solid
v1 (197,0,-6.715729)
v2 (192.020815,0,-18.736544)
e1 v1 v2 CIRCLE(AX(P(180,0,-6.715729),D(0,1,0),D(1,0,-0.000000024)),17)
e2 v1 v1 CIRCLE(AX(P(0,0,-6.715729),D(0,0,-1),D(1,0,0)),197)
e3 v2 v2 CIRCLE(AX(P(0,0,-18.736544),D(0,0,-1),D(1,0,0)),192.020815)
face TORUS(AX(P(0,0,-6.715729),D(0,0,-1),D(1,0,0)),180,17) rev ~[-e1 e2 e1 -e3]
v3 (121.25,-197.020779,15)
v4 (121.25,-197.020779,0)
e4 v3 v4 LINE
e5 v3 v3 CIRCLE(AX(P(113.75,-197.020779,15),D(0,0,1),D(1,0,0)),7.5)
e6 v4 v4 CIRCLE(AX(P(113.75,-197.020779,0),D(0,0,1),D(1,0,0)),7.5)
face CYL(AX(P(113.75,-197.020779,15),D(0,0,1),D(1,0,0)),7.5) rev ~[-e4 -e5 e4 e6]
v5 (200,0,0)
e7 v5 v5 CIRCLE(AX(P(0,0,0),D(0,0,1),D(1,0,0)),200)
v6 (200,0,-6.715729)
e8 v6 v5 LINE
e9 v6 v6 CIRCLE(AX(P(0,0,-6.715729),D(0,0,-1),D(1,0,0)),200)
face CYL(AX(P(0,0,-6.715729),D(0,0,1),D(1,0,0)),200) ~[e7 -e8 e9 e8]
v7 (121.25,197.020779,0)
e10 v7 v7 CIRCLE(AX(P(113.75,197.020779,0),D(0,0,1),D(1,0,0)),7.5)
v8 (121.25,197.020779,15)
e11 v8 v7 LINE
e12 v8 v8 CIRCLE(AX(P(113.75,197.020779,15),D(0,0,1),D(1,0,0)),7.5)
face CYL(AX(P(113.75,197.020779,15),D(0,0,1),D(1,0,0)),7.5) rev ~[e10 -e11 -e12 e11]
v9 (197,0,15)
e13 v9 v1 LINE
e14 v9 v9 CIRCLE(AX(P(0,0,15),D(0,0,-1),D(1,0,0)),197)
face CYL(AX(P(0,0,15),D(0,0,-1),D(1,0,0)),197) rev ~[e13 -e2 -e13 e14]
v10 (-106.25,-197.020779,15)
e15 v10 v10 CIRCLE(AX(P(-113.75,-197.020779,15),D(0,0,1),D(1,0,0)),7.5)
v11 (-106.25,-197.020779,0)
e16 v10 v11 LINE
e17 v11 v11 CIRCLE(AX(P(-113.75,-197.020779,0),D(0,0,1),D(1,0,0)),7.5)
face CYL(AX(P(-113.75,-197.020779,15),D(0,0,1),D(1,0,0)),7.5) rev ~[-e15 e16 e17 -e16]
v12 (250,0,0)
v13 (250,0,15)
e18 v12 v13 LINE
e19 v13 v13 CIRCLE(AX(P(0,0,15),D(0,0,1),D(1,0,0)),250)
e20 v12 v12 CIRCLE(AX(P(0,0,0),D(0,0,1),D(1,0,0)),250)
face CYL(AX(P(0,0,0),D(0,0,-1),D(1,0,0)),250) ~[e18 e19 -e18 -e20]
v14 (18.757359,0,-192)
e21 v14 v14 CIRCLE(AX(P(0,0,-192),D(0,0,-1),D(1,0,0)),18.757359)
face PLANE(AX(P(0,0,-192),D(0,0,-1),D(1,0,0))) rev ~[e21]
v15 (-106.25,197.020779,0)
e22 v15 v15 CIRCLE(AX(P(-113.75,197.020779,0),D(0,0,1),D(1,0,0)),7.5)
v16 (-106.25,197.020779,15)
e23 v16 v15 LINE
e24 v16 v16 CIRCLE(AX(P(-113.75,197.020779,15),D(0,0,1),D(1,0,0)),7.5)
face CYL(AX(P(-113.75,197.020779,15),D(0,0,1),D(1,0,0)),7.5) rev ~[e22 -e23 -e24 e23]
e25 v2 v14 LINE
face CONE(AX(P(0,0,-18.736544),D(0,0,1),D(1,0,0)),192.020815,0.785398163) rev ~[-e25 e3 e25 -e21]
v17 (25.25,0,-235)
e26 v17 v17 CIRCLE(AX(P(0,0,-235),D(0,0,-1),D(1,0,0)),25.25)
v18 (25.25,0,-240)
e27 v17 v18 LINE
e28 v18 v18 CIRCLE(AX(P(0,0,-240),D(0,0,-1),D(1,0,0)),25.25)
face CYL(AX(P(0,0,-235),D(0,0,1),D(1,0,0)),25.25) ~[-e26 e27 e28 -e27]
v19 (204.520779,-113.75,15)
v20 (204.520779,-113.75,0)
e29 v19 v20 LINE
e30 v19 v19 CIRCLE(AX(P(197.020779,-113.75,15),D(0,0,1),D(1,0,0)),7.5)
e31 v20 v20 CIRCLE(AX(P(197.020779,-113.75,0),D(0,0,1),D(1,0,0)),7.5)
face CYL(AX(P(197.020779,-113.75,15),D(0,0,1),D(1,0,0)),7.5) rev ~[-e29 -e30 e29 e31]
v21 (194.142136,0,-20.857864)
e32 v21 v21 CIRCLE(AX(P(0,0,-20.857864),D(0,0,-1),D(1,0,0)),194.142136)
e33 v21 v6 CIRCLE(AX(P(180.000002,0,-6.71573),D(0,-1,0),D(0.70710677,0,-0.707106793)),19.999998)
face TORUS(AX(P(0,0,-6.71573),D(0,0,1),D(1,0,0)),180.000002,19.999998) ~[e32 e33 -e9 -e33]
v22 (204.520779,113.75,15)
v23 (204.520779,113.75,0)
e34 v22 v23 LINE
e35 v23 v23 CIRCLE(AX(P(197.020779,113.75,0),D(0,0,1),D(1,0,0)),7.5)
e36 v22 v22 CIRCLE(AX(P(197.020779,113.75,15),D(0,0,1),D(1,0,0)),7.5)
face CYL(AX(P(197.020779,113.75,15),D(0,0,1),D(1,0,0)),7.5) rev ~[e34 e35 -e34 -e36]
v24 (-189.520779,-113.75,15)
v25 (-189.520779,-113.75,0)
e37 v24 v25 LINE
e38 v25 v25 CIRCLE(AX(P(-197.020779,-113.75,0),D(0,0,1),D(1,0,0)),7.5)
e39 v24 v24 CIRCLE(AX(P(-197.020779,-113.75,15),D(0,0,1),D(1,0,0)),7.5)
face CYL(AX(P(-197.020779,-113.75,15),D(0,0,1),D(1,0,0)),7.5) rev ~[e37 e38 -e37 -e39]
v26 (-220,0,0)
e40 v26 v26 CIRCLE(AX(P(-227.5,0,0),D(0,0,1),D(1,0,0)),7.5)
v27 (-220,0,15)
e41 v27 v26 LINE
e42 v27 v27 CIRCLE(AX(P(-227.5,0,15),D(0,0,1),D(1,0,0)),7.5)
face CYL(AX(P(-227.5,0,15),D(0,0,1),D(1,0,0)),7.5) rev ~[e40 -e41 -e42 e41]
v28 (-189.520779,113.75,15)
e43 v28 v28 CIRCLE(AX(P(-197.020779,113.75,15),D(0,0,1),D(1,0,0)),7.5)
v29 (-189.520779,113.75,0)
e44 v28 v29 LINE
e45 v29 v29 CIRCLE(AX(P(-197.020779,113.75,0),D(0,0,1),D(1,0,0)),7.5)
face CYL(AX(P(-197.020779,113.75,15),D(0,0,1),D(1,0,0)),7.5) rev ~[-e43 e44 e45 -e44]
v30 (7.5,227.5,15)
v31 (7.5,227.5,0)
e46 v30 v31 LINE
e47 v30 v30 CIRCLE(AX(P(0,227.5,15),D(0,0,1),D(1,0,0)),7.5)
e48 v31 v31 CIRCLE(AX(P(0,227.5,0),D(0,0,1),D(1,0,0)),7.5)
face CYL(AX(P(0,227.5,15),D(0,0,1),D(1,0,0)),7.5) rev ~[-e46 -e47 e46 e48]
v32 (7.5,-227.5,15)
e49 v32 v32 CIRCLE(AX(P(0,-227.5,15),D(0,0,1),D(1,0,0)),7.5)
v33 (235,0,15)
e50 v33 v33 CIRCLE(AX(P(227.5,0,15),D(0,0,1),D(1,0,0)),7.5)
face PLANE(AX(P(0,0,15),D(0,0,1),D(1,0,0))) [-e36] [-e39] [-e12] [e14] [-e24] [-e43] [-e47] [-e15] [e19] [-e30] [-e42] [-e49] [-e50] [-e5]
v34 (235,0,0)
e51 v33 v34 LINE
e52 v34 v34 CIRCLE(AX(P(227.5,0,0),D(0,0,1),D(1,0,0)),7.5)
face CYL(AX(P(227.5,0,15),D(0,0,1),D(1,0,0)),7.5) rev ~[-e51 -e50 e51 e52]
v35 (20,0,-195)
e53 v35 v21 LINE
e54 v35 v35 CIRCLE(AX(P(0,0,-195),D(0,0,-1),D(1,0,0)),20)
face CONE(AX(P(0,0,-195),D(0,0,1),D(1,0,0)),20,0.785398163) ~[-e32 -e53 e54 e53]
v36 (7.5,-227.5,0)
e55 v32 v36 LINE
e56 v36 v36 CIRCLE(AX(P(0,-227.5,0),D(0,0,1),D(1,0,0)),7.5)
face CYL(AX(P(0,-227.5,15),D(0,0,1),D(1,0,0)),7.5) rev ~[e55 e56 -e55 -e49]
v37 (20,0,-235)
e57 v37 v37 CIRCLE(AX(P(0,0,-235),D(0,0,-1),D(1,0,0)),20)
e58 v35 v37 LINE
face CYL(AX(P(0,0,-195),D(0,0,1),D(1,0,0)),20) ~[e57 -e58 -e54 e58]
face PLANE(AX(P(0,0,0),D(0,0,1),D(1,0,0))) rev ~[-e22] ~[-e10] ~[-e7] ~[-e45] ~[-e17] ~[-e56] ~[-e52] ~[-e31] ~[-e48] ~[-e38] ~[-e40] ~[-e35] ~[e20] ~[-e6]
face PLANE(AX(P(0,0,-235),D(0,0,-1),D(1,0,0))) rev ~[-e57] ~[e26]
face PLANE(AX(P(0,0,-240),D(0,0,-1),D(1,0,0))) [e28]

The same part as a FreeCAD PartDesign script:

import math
import FreeCAD as App
import Part
import Sketcher

V = App.Vector
Q = App.Units.Quantity

doc = App.newDocument("Part")
body = doc.addObject("PartDesign::Body", "Body")

sketch1 = doc.addObject("Sketcher::SketchObject", "Sketch")
body.addObject(sketch1)
sketch1.AttachmentSupport = (doc.XY_Plane, [""])
sketch1.MapMode = "FlatFace"
sketch1.addGeometry(Part.Circle(V(0, 0, 0), V(0, 0, 1), 250), False)
sketch1.addGeometry(Part.Circle(V(0, 0, 0), V(0, 0, 1), 200), False)
sketch1.addConstraint(Sketcher.Constraint("Coincident", 0, 3, -1, 1))
sketch1.addConstraint(Sketcher.Constraint("Coincident", 1, 3, -1, 1))
sketch1.addConstraint(Sketcher.Constraint("Diameter", 0, 500.0))
sketch1.addConstraint(Sketcher.Constraint("Diameter", 1, 400.0))
pad1 = doc.addObject("PartDesign::Pad", "Pad")
body.addObject(pad1)
pad1.Profile = sketch1
pad1.Length = 15

sketch2 = doc.addObject("Sketcher::SketchObject", "Sketch001")
body.addObject(sketch2)
sketch2.AttachmentSupport = (doc.XZ_Plane, [""])
sketch2.MapMode = "FlatFace"
sketch2.addGeometry(Part.LineSegment(V(200, -6.715729, 0), V(200, 15, 0)), False)
sketch2.addGeometry(Part.LineSegment(V(200, 15, 0), V(197, 15, 0)), False)
sketch2.addGeometry(Part.LineSegment(V(197, 15, 0), V(197, -6.715729, 0)), False)
sketch2.addGeometry(Part.ArcOfCircle(Part.Circle(V(180, -6.715729, 0), V(0, 0, 1), 17), math.radians(-45.000002), math.radians(-0.000001)), False)
sketch2.addGeometry(Part.LineSegment(V(192.020815, -18.736544, 0), V(18.757359, -192, 0)), False)
sketch2.addGeometry(Part.LineSegment(V(18.757359, -192, 0), V(0, -192, 0)), False)
sketch2.addGeometry(Part.LineSegment(V(0, -192, 0), V(0, -195, 0)), False)
sketch2.addGeometry(Part.LineSegment(V(0, -195, 0), V(20, -195, 0)), False)
sketch2.addGeometry(Part.LineSegment(V(20, -195, 0), V(194.142136, -20.857864, 0)), False)
sketch2.addGeometry(Part.ArcOfCircle(Part.Circle(V(180.000002, -6.71573, 0), V(0, 0, 1), 19.999998), math.radians(-45.000001), math.radians(0.000002)), False)
sketch2.addConstraint(Sketcher.Constraint("Coincident", 0, 2, 1, 1))
sketch2.addConstraint(Sketcher.Constraint("Coincident", 1, 2, 2, 1))
sketch2.addConstraint(Sketcher.Constraint("Tangent", 2, 2, 3, 2))
sketch2.addConstraint(Sketcher.Constraint("Tangent", 3, 1, 4, 1))
sketch2.addConstraint(Sketcher.Constraint("Coincident", 4, 2, 5, 1))
sketch2.addConstraint(Sketcher.Constraint("Coincident", 5, 2, 6, 1))
sketch2.addConstraint(Sketcher.Constraint("Coincident", 6, 2, 7, 1))
sketch2.addConstraint(Sketcher.Constraint("Coincident", 7, 2, 8, 1))
sketch2.addConstraint(Sketcher.Constraint("Tangent", 8, 2, 9, 1))
sketch2.addConstraint(Sketcher.Constraint("Tangent", 9, 2, 0, 1))
sketch2.addConstraint(Sketcher.Constraint("Vertical", 0))
sketch2.addConstraint(Sketcher.Constraint("Horizontal", 1))
sketch2.addConstraint(Sketcher.Constraint("Vertical", 2))
sketch2.addConstraint(Sketcher.Constraint("Horizontal", 5))
sketch2.addConstraint(Sketcher.Constraint("Vertical", 6))
sketch2.addConstraint(Sketcher.Constraint("Horizontal", 7))
sketch2.addConstraint(Sketcher.Constraint("Coincident", 9, 3, 3, 3))
sketch2.addConstraint(Sketcher.Constraint("PointOnObject", 5, 2, -2))
sketch2.addConstraint(Sketcher.Constraint("Parallel", 4, 8))
sketch2.addConstraint(Sketcher.Constraint("Equal", 1, 6))
sketch2.addConstraint(Sketcher.Constraint("Radius", 3, 17.0))
sketch2.addConstraint(Sketcher.Constraint("DistanceX", 1, 2, 1, 1, 3.0))
sketch2.addConstraint(Sketcher.Constraint("DistanceX", 7, 1, 7, 2, 20.0))
sketch2.addConstraint(Sketcher.Constraint("Angle", 4, Q("-135 deg")))
sketch2.addConstraint(Sketcher.Constraint("DistanceX", -1, 1, 3, 3, 180.0))
sketch2.addConstraint(Sketcher.Constraint("DistanceY", -1, 1, 0, 2, 15.0))
sketch2.addConstraint(Sketcher.Constraint("DistanceY", 4, 2, -1, 1, 192.0))
revolution = doc.addObject("PartDesign::Revolution", "Revolution")
body.addObject(revolution)
revolution.Profile = sketch2
revolution.ReferenceAxis = (sketch2, ["V_Axis"])
revolution.Angle = 360

sketch3 = doc.addObject("Sketcher::SketchObject", "Sketch002")
body.addObject(sketch3)
sketch3.AttachmentSupport = (doc.XY_Plane, [""])
sketch3.MapMode = "FlatFace"
sketch3.AttachmentOffset = App.Placement(V(0, 0, 15), App.Rotation())
sketch3.addGeometry(Part.Circle(V(227.5, 0, 0), V(0, 0, 1), 7.5), False)
sketch3.addGeometry(Part.Circle(V(197.020779, 113.75, 0), V(0, 0, 1), 7.5), False)
sketch3.addGeometry(Part.Circle(V(113.75, 197.020779, 0), V(0, 0, 1), 7.5), False)
sketch3.addGeometry(Part.Circle(V(0, 227.5, 0), V(0, 0, 1), 7.5), False)
sketch3.addGeometry(Part.Circle(V(-113.75, 197.020779, 0), V(0, 0, 1), 7.5), False)
sketch3.addGeometry(Part.Circle(V(-197.020779, 113.75, 0), V(0, 0, 1), 7.5), False)
sketch3.addGeometry(Part.Circle(V(-227.5, 0, 0), V(0, 0, 1), 7.5), False)
sketch3.addGeometry(Part.Circle(V(-197.020779, -113.75, 0), V(0, 0, 1), 7.5), False)
sketch3.addGeometry(Part.Circle(V(-113.75, -197.020779, 0), V(0, 0, 1), 7.5), False)
sketch3.addGeometry(Part.Circle(V(0, -227.5, 0), V(0, 0, 1), 7.5), False)
sketch3.addGeometry(Part.Circle(V(113.75, -197.020779, 0), V(0, 0, 1), 7.5), False)
sketch3.addGeometry(Part.Circle(V(197.020779, -113.75, 0), V(0, 0, 1), 7.5), False)
sketch3.addConstraint(Sketcher.Constraint("Equal", 0, 1))
sketch3.addConstraint(Sketcher.Constraint("Equal", 1, 2))
sketch3.addConstraint(Sketcher.Constraint("Equal", 2, 3))
sketch3.addConstraint(Sketcher.Constraint("Equal", 3, 4))
sketch3.addConstraint(Sketcher.Constraint("Equal", 4, 5))
sketch3.addConstraint(Sketcher.Constraint("Equal", 5, 6))
sketch3.addConstraint(Sketcher.Constraint("Equal", 6, 7))
sketch3.addConstraint(Sketcher.Constraint("Equal", 7, 8))
sketch3.addConstraint(Sketcher.Constraint("Equal", 8, 9))
sketch3.addConstraint(Sketcher.Constraint("Equal", 9, 10))
sketch3.addConstraint(Sketcher.Constraint("Equal", 10, 11))
sketch3.addConstraint(Sketcher.Constraint("Symmetric", 0, 3, 6, 3, -1, 1))
sketch3.addConstraint(Sketcher.Constraint("Symmetric", 1, 3, 7, 3, -1, 1))
sketch3.addConstraint(Sketcher.Constraint("Symmetric", 2, 3, 8, 3, -1, 1))
sketch3.addConstraint(Sketcher.Constraint("Symmetric", 3, 3, 9, 3, -1, 1))
sketch3.addConstraint(Sketcher.Constraint("Symmetric", 4, 3, 10, 3, -1, 1))
sketch3.addConstraint(Sketcher.Constraint("Symmetric", 5, 3, 11, 3, -1, 1))
sketch3.addConstraint(Sketcher.Constraint("Symmetric", 2, 3, 4, 3, -2))
sketch3.addConstraint(Sketcher.Constraint("Symmetric", 1, 3, 5, 3, -2))
sketch3.addConstraint(Sketcher.Constraint("PointOnObject", 0, 3, -1))
sketch3.addConstraint(Sketcher.Constraint("PointOnObject", 3, 3, -2))
sketch3.addConstraint(Sketcher.Constraint("Diameter", 0, 15.0))
sketch3.addConstraint(Sketcher.Constraint("DistanceX", -1, 1, 0, 3, 227.5))
sketch3.addConstraint(Sketcher.Constraint("DistanceY", -1, 1, 3, 3, 227.5))
sketch3.addConstraint(Sketcher.Constraint("DistanceX", 4, 3, 2, 3, 227.5))
sketch3.addConstraint(Sketcher.Constraint("DistanceY", 7, 3, 5, 3, 227.5))
sketch3.addConstraint(Sketcher.Constraint("DistanceX", -1, 1, 1, 3, 197.020779))
sketch3.addConstraint(Sketcher.Constraint("DistanceY", -1, 1, 2, 3, 197.020779))
pocket1 = doc.addObject("PartDesign::Pocket", "Pocket")
body.addObject(pocket1)
pocket1.Profile = sketch3
pocket1.Type = "ThroughAll"

sketch4 = doc.addObject("Sketcher::SketchObject", "Sketch003")
body.addObject(sketch4)
sketch4.AttachmentSupport = (doc.XY_Plane, [""])
sketch4.MapMode = "FlatFace"
sketch4.AttachmentOffset = App.Placement(V(0, 0, -195), App.Rotation())
sketch4.addGeometry(Part.Circle(V(0, 0, 0), V(0, 0, 1), 20), False)
sketch4.addConstraint(Sketcher.Constraint("Coincident", 0, 3, -1, 1))
sketch4.addConstraint(Sketcher.Constraint("Diameter", 0, 40.0))
pad2 = doc.addObject("PartDesign::Pad", "Pad001")
body.addObject(pad2)
pad2.Profile = sketch4
pad2.Length = 40
pad2.Reversed = True

sketch5 = doc.addObject("Sketcher::SketchObject", "Sketch004")
body.addObject(sketch5)
sketch5.AttachmentSupport = (doc.XY_Plane, [""])
sketch5.MapMode = "FlatFace"
sketch5.AttachmentOffset = App.Placement(V(0, 0, -235), App.Rotation())
sketch5.addGeometry(Part.Circle(V(0, 0, 0), V(0, 0, 1), 25.25), False)
sketch5.addConstraint(Sketcher.Constraint("Coincident", 0, 3, -1, 1))
sketch5.addConstraint(Sketcher.Constraint("Diameter", 0, 50.5))
pad3 = doc.addObject("PartDesign::Pad", "Pad002")
body.addObject(pad3)
pad3.Profile = sketch5
pad3.Length = 5
pad3.Reversed = True

doc.recompute()
